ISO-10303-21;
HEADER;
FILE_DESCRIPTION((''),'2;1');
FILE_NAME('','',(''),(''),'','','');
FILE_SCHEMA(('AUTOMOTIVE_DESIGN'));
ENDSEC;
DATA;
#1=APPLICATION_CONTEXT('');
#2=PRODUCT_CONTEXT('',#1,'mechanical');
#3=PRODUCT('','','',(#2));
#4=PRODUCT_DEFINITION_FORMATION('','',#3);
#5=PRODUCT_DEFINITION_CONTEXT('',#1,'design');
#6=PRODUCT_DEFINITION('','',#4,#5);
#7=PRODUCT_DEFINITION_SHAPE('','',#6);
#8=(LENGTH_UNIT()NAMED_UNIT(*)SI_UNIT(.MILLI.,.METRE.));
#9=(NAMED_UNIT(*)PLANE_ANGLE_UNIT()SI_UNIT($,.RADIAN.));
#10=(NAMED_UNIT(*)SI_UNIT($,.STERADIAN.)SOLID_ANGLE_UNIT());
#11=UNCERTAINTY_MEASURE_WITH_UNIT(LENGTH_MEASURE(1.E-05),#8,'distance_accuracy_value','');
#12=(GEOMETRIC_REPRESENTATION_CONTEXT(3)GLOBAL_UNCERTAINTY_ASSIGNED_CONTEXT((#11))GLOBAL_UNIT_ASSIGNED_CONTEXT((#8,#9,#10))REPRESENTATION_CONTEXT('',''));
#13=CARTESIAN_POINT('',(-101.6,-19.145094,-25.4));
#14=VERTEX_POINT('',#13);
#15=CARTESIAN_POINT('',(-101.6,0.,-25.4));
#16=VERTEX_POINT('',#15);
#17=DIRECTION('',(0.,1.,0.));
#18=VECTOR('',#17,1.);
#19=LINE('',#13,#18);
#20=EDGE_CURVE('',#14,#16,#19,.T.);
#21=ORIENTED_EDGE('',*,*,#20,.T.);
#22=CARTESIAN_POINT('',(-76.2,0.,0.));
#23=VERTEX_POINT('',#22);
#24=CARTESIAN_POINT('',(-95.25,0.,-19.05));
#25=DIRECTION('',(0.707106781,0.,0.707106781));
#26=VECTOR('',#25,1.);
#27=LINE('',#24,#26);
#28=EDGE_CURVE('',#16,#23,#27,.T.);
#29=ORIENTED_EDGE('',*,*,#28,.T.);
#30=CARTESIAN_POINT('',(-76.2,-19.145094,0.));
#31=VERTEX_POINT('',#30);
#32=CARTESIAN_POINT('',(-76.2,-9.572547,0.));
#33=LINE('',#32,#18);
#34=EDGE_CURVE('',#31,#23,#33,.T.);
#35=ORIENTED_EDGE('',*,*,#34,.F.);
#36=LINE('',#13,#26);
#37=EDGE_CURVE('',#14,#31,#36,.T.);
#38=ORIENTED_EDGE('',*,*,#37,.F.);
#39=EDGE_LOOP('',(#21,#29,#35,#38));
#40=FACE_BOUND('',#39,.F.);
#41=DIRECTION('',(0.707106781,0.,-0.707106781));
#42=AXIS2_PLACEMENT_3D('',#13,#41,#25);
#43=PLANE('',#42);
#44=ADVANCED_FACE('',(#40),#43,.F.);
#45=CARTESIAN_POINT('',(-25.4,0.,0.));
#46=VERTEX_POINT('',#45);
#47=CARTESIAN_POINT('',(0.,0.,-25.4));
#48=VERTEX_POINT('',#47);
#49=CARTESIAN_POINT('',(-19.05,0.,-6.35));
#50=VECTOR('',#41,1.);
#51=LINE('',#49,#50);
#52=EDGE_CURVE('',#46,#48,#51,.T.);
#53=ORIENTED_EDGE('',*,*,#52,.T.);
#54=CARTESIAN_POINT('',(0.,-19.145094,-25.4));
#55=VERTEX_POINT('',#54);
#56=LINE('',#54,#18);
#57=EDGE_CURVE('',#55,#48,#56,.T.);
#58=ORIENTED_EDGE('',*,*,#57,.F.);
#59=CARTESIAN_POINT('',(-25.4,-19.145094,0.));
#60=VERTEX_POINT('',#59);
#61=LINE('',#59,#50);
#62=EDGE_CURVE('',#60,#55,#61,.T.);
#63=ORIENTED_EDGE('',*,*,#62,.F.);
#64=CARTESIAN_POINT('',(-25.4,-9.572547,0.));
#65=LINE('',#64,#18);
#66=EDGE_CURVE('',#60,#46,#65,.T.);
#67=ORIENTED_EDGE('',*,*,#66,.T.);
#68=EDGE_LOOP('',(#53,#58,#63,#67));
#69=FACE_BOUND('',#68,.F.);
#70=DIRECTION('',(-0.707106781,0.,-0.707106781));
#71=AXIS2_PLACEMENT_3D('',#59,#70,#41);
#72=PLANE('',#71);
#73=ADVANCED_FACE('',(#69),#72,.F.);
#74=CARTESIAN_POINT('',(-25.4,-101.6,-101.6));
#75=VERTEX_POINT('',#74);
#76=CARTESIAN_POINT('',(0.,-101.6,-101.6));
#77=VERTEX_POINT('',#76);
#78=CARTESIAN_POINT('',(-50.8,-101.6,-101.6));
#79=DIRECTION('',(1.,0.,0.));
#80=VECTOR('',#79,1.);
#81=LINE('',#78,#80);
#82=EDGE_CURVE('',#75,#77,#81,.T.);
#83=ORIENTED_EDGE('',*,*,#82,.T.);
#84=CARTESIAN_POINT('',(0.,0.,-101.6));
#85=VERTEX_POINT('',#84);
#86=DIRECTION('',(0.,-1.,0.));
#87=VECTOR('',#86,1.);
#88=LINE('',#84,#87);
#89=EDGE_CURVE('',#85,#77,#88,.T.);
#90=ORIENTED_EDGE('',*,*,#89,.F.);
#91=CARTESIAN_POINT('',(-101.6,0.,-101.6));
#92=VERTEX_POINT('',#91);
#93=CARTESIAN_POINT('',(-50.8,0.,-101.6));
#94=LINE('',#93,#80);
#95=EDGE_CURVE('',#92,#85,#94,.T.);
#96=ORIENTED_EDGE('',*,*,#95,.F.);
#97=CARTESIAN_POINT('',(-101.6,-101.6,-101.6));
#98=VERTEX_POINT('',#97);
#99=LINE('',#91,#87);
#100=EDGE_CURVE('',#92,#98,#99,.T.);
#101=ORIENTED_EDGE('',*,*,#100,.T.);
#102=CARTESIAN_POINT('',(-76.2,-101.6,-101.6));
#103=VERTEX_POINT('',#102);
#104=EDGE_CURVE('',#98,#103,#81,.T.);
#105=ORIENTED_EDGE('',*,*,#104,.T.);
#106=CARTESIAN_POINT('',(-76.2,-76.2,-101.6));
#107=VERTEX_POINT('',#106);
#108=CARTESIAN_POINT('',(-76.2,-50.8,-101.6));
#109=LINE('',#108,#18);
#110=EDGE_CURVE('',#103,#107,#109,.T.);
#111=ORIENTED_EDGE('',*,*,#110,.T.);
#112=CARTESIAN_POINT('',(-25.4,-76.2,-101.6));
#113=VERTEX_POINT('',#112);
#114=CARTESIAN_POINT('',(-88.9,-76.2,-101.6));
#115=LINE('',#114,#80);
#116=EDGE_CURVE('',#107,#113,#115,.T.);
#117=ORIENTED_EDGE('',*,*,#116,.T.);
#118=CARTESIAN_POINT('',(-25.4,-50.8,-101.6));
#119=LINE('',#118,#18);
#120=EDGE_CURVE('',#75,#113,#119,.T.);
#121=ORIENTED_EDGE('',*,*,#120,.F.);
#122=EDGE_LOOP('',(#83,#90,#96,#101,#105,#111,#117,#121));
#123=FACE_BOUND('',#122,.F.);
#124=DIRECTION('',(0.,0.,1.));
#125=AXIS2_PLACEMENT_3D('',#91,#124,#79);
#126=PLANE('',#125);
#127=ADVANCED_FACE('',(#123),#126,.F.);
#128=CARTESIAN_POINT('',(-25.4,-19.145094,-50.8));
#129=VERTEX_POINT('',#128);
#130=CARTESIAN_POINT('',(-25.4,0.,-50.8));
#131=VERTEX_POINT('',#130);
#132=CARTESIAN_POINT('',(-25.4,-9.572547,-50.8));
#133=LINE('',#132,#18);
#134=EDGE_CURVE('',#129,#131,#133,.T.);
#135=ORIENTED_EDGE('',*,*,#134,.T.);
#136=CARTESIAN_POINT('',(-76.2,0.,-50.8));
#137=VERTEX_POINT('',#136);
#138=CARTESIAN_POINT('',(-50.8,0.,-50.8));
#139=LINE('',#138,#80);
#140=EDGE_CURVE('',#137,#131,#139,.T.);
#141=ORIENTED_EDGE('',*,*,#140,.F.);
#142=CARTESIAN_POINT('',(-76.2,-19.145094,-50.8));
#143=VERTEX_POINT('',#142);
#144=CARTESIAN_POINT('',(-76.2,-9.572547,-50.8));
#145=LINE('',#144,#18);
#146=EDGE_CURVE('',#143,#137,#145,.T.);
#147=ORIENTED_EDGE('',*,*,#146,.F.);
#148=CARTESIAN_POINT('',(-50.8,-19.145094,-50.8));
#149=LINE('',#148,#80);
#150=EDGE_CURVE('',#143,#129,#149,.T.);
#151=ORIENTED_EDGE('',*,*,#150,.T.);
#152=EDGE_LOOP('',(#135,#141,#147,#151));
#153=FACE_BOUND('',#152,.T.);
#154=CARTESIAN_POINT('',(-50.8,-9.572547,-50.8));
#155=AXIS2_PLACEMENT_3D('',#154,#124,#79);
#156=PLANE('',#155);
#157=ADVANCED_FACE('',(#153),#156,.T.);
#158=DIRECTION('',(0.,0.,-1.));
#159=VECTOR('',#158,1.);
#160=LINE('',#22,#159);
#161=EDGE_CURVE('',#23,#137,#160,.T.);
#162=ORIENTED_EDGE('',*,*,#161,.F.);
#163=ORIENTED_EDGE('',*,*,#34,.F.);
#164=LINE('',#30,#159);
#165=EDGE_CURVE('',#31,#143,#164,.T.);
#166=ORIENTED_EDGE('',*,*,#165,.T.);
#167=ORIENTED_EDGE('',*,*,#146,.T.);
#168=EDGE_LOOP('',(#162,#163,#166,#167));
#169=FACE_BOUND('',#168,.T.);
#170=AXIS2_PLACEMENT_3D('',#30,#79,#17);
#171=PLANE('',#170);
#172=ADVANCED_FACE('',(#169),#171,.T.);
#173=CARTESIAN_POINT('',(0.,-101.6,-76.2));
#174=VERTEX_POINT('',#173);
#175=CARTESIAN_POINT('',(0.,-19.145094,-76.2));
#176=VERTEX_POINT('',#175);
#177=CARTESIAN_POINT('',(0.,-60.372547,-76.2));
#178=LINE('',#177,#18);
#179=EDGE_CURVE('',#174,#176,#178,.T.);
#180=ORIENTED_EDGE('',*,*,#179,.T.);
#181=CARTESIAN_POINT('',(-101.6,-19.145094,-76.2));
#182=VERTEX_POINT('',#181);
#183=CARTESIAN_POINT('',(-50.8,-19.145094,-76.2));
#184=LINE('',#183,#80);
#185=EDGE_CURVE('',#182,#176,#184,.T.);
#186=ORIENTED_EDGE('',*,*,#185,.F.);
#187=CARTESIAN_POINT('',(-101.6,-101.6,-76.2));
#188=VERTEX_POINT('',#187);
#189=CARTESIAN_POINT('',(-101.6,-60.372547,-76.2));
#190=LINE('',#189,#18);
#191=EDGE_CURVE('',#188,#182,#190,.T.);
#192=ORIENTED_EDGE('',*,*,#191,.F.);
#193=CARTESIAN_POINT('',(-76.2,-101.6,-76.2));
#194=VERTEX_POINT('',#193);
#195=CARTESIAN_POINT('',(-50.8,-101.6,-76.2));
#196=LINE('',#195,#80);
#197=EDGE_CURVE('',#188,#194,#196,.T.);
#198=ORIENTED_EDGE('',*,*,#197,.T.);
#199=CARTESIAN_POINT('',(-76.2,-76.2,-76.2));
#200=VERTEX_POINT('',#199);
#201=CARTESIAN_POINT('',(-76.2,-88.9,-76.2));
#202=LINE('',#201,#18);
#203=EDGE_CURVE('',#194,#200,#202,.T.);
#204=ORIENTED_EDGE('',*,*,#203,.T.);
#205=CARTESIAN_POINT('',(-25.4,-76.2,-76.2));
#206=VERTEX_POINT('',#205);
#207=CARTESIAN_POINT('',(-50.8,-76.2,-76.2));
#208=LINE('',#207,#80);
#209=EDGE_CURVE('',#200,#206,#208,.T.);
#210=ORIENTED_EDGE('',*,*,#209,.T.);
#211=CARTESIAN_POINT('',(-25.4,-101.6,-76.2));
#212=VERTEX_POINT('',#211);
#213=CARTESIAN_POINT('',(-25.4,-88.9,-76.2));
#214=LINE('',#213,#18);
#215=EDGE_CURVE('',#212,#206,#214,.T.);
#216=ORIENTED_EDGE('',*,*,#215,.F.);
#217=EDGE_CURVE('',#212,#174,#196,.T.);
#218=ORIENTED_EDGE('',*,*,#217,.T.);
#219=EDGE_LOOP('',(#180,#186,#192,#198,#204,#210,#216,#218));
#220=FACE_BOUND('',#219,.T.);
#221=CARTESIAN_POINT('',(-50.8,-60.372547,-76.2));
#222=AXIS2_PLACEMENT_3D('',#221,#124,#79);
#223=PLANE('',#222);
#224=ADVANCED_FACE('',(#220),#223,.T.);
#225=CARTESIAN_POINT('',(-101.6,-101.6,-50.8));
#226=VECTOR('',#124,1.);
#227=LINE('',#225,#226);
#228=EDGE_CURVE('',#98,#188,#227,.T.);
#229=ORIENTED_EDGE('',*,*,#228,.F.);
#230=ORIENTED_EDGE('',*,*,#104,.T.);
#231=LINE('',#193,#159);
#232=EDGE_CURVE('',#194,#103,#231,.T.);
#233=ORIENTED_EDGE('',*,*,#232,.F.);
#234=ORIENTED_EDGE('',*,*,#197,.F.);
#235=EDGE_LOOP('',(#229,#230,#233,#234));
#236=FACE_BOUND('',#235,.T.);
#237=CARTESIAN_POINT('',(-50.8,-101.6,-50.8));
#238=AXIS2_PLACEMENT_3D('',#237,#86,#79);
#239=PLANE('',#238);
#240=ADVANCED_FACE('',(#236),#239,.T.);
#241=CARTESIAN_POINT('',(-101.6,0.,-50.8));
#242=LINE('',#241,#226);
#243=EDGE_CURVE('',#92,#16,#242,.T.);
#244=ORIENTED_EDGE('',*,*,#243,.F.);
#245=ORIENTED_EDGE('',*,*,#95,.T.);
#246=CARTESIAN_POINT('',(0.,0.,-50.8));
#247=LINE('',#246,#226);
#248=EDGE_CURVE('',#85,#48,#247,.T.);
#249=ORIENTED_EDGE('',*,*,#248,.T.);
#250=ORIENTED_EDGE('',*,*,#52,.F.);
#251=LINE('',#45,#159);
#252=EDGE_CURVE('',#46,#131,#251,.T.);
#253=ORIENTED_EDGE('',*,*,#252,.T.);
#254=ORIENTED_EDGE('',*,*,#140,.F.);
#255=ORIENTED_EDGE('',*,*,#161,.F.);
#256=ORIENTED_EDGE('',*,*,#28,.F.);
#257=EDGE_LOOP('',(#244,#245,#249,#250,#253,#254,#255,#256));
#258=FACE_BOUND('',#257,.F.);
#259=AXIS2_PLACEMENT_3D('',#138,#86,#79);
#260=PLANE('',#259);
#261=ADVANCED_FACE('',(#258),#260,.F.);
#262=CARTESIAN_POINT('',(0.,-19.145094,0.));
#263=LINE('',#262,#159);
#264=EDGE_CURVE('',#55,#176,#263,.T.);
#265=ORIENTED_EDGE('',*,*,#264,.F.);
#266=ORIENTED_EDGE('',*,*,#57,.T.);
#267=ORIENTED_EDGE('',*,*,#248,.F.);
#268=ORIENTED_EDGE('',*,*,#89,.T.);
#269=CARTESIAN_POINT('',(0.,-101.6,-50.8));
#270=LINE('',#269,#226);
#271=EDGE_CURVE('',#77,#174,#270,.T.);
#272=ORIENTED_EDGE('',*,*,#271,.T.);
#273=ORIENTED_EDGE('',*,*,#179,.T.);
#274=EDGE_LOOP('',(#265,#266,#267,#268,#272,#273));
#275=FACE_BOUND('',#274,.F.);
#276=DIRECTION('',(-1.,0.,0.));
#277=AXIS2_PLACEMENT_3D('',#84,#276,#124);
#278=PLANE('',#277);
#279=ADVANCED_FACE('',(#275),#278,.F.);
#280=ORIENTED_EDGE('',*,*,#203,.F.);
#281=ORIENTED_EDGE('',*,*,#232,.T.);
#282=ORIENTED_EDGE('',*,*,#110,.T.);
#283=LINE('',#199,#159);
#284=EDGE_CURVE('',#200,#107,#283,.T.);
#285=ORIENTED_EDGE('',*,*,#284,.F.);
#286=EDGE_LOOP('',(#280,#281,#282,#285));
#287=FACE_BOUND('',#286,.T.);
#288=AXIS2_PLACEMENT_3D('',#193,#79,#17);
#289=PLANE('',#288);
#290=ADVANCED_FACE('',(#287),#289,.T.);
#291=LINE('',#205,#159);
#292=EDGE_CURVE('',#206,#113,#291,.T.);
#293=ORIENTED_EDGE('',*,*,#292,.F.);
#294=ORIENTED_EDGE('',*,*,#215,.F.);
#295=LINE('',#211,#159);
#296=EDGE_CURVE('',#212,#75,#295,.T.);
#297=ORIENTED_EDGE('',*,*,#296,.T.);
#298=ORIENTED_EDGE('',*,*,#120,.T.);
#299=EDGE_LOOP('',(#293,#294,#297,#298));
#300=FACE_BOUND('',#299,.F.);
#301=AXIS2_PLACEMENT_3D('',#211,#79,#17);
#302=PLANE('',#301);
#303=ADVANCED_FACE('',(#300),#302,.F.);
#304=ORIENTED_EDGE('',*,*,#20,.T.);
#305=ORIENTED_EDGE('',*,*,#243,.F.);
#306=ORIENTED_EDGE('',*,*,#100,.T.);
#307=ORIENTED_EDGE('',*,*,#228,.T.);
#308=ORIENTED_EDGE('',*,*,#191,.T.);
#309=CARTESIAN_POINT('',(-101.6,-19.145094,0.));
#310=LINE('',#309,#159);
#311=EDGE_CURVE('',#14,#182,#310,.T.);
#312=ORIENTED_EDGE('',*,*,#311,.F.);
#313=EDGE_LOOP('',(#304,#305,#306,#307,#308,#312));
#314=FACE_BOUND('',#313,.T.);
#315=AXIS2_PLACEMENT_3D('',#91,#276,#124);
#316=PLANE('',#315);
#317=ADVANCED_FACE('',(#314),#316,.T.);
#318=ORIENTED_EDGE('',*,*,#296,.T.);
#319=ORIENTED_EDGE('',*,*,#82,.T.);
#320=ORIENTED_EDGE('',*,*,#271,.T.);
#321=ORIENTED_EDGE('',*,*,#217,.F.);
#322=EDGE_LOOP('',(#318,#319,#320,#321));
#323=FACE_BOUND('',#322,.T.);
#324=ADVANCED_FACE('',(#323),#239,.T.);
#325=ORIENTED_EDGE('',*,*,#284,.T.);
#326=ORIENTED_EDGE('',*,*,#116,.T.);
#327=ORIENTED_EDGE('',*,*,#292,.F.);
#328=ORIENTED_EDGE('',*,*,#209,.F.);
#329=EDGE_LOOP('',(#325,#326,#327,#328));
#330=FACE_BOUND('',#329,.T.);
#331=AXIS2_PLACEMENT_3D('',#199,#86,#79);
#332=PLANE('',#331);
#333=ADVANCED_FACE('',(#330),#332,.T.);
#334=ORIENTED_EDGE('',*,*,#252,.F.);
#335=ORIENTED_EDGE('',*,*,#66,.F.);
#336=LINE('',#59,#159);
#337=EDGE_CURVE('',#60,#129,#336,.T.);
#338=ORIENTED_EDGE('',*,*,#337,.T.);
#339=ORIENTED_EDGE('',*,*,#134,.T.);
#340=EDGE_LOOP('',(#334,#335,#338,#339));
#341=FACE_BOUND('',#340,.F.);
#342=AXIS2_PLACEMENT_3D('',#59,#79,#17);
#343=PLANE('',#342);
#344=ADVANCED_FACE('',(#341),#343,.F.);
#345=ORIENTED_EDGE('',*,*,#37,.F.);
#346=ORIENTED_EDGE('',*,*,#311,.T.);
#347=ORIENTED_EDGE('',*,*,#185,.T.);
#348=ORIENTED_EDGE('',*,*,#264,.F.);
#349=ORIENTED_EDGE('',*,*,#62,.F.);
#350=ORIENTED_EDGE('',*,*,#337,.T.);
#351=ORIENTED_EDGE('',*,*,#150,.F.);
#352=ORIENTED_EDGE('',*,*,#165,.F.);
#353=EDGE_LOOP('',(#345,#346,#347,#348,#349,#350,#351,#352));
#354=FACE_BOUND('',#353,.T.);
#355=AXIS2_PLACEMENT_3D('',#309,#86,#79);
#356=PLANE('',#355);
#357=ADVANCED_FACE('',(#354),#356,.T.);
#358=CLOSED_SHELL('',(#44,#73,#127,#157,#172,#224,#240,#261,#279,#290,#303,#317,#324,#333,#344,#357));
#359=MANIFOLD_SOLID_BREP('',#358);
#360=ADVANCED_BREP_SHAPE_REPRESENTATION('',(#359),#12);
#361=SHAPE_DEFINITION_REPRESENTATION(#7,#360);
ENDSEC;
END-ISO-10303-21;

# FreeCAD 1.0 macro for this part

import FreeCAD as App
import Part
import Sketcher
from FreeCAD import Vector
Q = App.Units.Quantity


def add_polygon(sketch, points):
    """Adds a closed chain of lines whose ends are joined by coincident constraints."""
    first, n = sketch.GeometryCount, len(points)
    for a, b in zip(points, points[1:] + points[:1]):
        sketch.addGeometry(Part.LineSegment(App.Vector(*a, 0), App.Vector(*b, 0)), False)
    for i in range(n):
        sketch.addConstraint(Sketcher.Constraint("Coincident", first + i, 2, first + (i + 1) % n, 1))

doc = App.newDocument("Part")
body = doc.addObject("PartDesign::Body", "Body")

# Sketch on XZ plane
sketch1 = body.newObject("Sketcher::SketchObject", "Sketch")
sketch1.AttachmentSupport = (doc.getObject("XZ_Plane"), [""])
sketch1.MapMode = "FlatFace"
add_polygon(sketch1, [(-101.6, 0), (-101.6, -101.6), (0, -101.6), (0, 0)])  # lines 0-3
sketch1.addConstraint([
    Sketcher.Constraint("Vertical", 0),
    Sketcher.Constraint("Horizontal", 1),
    Sketcher.Constraint("Vertical", 2),
    Sketcher.Constraint("Horizontal", 3),
    Sketcher.Constraint("Coincident", 2, 2, -1, 1),
    Sketcher.Constraint("Equal", 3, 0),
    Sketcher.Constraint("DistanceX", 1, 1, 1, 2, Q("4 in")),
])
pad1 = body.newObject("PartDesign::Pad", "Pad")
pad1.Profile = sketch1
pad1.Length = Q("4 in")

# Sketch on XY plane
sketch2 = body.newObject("Sketcher::SketchObject", "Sketch001")
sketch2.AttachmentSupport = (doc.getObject("XY_Plane"), [""])
sketch2.MapMode = "FlatFace"
add_polygon(sketch2, [(-101.6, -19.145094), (-101.6, -101.6), (0, -101.6), (0, -19.145094)])  # lines 0-3
sketch2.addConstraint([
    Sketcher.Constraint("Vertical", 0),
    Sketcher.Constraint("Horizontal", 1),
    Sketcher.Constraint("Vertical", 2),
    Sketcher.Constraint("Horizontal", 3),
    Sketcher.Constraint("PointOnObject", 1, 2, -2),
    Sketcher.Constraint("DistanceX", 1, 1, 1, 2, Q("4 in")),
    Sketcher.Constraint("DistanceY", 0, 2, -1, 1, Q("4 in")),
    Sketcher.Constraint("DistanceY", 0, 2, 0, 1, 82.454906),
])
pocket1 = body.newObject("PartDesign::Pocket", "Pocket")
pocket1.Profile = sketch2
pocket1.Length = Q("3 in")

# Sketch on XY plane
sketch3 = body.newObject("Sketcher::SketchObject", "Sketch002")
sketch3.AttachmentSupport = (doc.getObject("XY_Plane"), [""])
sketch3.MapMode = "FlatFace"
sketch3.AttachmentOffset = App.Placement(Vector(0, 0, -3 * 25.4), App.Rotation())
add_polygon(sketch3, [(-76.2, -76.2), (-76.2, -101.6), (-25.4, -101.6), (-25.4, -76.2)])  # lines 0-3
sketch3.addConstraint([
    Sketcher.Constraint("Vertical", 0),
    Sketcher.Constraint("Horizontal", 1),
    Sketcher.Constraint("Vertical", 2),
    Sketcher.Constraint("Horizontal", 3),
    Sketcher.Constraint("DistanceX", 1, 1, 1, 2, Q("2 in")),
    Sketcher.Constraint("DistanceY", 0, 2, 0, 1, Q("1 in")),
    Sketcher.Constraint("DistanceX", 0, 2, -1, 1, Q("3 in")),
    Sketcher.Constraint("DistanceY", 0, 2, -1, 1, Q("4 in")),
])
pocket2 = body.newObject("PartDesign::Pocket", "Pocket001")
pocket2.Profile = sketch3
pocket2.Length = Q("1.99 in")

# Sketch on XY plane
sketch4 = body.newObject("Sketcher::SketchObject", "Sketch003")
sketch4.AttachmentSupport = (doc.getObject("XY_Plane"), [""])
sketch4.MapMode = "FlatFace"
add_polygon(sketch4, [(-76.2, 0), (-76.2, -19.145094), (-25.4, -19.145094), (-25.4, 0)])  # lines 0-3
sketch4.addConstraint([
    Sketcher.Constraint("Vertical", 0),
    Sketcher.Constraint("Horizontal", 1),
    Sketcher.Constraint("Vertical", 2),
    Sketcher.Constraint("Horizontal", 3),
    Sketcher.Constraint("PointOnObject", 2, 2, -1),
    Sketcher.Constraint("DistanceX", 1, 1, 1, 2, Q("2 in")),
    Sketcher.Constraint("DistanceX", 0, 2, -1, 1, Q("3 in")),
    Sketcher.Constraint("DistanceY", 0, 2, 0, 1, 19.145094),
])
pocket3 = body.newObject("PartDesign::Pocket", "Pocket002")
pocket3.Profile = sketch4
pocket3.Length = Q("2 in")

# Sketch on XZ plane
sketch5 = body.newObject("Sketcher::SketchObject", "Sketch004")
sketch5.AttachmentSupport = (doc.getObject("XZ_Plane"), [""])
sketch5.MapMode = "FlatFace"
sketch5.AttachmentOffset = App.Placement(Vector(0, 0, 19.145094), App.Rotation())
add_polygon(sketch5, [(-101.6, 0), (-101.6, -25.4), (-76.2, 0)])  # lines 0-2
add_polygon(sketch5, [(-25.4, 0), (0, -25.4), (0, 0)])  # lines 3-5
sketch5.addConstraint([
    Sketcher.Constraint("Vertical", 0),
    Sketcher.Constraint("Horizontal", 2),
    Sketcher.Constraint("Vertical", 4),
    Sketcher.Constraint("Horizontal", 5),
    Sketcher.Constraint("Coincident", 4, 2, -1, 1),
    Sketcher.Constraint("PointOnObject", 1, 2, -1),
    Sketcher.Constraint("Perpendicular", 1, 3),
    Sketcher.Constraint("Horizontal", 0, 2, 3, 2),
    Sketcher.Constraint("Equal", 2, 5),
    Sketcher.Constraint("DistanceX", 2, 2, 2, 1, Q("1 in")),
    Sketcher.Constraint("DistanceX", 0, 2, -1, 1, Q("4 in")),
])
pocket4 = body.newObject("PartDesign::Pocket", "Pocket003")
pocket4.Profile = sketch5
pocket4.Length = Q("5.39 in")

doc.recompute()
